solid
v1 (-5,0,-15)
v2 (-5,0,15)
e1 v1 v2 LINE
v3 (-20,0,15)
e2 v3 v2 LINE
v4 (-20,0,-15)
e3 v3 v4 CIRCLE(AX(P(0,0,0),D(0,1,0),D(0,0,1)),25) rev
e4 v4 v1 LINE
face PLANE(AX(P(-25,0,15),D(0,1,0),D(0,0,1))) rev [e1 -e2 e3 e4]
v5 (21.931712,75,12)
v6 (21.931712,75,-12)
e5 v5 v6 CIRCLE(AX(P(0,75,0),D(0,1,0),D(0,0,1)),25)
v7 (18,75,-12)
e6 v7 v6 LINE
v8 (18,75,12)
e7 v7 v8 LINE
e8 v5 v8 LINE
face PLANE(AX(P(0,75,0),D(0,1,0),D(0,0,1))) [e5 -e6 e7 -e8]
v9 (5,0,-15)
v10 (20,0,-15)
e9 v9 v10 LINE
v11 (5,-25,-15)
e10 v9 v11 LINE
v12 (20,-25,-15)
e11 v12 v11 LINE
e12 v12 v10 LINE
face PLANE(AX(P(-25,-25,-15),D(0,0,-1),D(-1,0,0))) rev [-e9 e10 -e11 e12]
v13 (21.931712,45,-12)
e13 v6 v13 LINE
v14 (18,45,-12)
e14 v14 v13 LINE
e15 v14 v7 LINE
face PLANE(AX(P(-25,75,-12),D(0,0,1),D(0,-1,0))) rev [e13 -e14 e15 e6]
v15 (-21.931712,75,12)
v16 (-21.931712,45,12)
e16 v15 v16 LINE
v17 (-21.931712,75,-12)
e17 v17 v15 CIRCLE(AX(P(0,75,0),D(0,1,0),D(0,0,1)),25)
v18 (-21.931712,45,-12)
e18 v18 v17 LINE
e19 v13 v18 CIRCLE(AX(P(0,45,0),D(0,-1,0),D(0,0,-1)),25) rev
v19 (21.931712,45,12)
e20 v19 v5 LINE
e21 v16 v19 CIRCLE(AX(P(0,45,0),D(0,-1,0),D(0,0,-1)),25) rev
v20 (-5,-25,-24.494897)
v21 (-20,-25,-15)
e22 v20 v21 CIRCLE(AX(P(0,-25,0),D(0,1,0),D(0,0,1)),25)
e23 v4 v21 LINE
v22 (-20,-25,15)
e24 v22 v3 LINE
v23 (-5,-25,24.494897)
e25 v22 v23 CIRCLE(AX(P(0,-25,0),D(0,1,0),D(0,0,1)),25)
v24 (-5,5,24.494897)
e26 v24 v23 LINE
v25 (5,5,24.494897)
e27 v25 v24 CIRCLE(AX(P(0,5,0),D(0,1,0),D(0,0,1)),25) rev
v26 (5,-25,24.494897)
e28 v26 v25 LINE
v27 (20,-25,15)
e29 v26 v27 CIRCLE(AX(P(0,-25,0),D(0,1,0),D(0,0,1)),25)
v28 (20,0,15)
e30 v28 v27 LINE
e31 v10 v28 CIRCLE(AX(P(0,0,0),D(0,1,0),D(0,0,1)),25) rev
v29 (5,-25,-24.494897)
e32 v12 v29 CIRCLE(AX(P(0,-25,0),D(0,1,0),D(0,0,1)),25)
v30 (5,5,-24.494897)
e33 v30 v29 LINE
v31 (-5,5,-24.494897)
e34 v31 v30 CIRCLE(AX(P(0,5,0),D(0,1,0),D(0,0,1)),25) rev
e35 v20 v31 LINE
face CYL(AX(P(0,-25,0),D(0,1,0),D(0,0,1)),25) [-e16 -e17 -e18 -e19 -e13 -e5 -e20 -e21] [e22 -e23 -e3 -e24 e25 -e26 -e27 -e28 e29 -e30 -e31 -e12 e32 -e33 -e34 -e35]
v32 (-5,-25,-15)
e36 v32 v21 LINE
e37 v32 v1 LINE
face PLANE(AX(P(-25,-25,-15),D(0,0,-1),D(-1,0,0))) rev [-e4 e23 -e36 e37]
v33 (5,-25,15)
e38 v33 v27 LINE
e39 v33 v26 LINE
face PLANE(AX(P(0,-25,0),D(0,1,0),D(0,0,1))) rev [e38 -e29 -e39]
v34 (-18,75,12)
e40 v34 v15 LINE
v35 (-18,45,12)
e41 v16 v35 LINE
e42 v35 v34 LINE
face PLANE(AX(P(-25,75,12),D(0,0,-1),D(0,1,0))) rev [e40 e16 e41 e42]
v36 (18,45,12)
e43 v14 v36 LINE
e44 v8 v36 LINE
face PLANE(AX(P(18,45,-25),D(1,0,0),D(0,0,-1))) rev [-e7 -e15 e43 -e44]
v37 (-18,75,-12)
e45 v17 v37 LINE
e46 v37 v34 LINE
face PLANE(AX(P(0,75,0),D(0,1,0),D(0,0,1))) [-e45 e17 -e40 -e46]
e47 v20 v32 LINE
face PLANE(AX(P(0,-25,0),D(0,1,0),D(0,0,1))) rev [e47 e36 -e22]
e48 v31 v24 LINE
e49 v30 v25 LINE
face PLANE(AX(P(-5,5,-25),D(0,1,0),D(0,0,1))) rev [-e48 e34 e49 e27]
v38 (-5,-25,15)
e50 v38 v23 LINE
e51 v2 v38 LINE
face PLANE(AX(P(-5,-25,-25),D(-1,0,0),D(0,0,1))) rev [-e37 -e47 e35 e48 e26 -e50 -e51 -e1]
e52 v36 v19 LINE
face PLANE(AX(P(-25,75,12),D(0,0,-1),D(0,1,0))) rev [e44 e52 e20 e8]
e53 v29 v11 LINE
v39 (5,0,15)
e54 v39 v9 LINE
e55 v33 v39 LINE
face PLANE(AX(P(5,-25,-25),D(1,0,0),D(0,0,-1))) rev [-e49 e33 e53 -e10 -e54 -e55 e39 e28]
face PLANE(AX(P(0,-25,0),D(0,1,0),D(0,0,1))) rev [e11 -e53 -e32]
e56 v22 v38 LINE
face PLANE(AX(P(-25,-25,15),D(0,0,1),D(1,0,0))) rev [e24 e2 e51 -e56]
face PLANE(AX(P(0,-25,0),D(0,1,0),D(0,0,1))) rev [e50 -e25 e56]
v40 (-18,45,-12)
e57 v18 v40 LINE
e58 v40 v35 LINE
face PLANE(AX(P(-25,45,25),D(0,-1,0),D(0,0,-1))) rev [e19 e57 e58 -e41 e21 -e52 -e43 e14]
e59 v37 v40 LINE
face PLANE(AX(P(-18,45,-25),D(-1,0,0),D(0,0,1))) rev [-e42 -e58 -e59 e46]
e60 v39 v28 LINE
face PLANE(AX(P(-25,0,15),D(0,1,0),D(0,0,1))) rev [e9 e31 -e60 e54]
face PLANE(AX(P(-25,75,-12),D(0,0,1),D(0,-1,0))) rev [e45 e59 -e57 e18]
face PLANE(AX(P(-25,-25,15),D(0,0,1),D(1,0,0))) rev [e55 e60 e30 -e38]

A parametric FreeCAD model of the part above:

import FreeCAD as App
import Part
import Sketcher
from FreeCAD import Vector
Q = App.Units.Quantity

doc = App.newDocument("Part")
body = doc.addObject("PartDesign::Body", "Body")

sketch1 = doc.addObject("Sketcher::SketchObject", "Sketch")
body.addObject(sketch1)
sketch1.AttachmentSupport = (doc.XZ_Plane, [""])
sketch1.MapMode = "FlatFace"
sketch1.addGeometry(Part.Circle(Vector(0, 0, 0), Vector(0, 0, 1), 25), False)
sketch1.addConstraint(Sketcher.Constraint("Coincident", 0, 3, -1, 1))
sketch1.addConstraint(Sketcher.Constraint("Diameter", 0, Q("50 mm")))
pad1 = doc.addObject("PartDesign::Pad", "Pad")
body.addObject(pad1)
pad1.Profile = sketch1
pad1.Length = 25

sketch2 = doc.addObject("Sketcher::SketchObject", "Sketch001")
body.addObject(sketch2)
sketch2.AttachmentSupport = (doc.XZ_Plane, [""])
sketch2.MapMode = "FlatFace"
sketch2.AttachmentOffset = App.Placement(Vector(0, 0, -75), App.Rotation())
sketch2.addGeometry(Part.Circle(Vector(0, 0, 0), Vector(0, 0, 1), 25), False)
sketch2.addConstraint(Sketcher.Constraint("Coincident", 0, 3, -1, 1))
sketch2.addConstraint(Sketcher.Constraint("Diameter", 0, Q("50 mm")))
pad2 = doc.addObject("PartDesign::Pad", "Pad001")
body.addObject(pad2)
pad2.Profile = sketch2
pad2.Length = 75

sketch3 = doc.addObject("Sketcher::SketchObject", "Sketch002")
body.addObject(sketch3)
sketch3.AttachmentSupport = (doc.YZ_Plane, [""])
sketch3.MapMode = "FlatFace"
sketch3.addGeometry(Part.LineSegment(Vector(-25, 15, 0), Vector(-25, -15, 0)), False)
sketch3.addGeometry(Part.LineSegment(Vector(-25, -15, 0), Vector(0, -15, 0)), False)
sketch3.addGeometry(Part.LineSegment(Vector(0, -15, 0), Vector(0, 15, 0)), False)
sketch3.addGeometry(Part.LineSegment(Vector(0, 15, 0), Vector(-25, 15, 0)), False)
sketch3.addConstraint(Sketcher.Constraint("Coincident", 0, 2, 1, 1))
sketch3.addConstraint(Sketcher.Constraint("Coincident", 1, 2, 2, 1))
sketch3.addConstraint(Sketcher.Constraint("Coincident", 2, 2, 3, 1))
sketch3.addConstraint(Sketcher.Constraint("Coincident", 3, 2, 0, 1))
sketch3.addConstraint(Sketcher.Constraint("Vertical", 0))
sketch3.addConstraint(Sketcher.Constraint("Horizontal", 1))
sketch3.addConstraint(Sketcher.Constraint("Vertical", 2))
sketch3.addConstraint(Sketcher.Constraint("Horizontal", 3))
sketch3.addConstraint(Sketcher.Constraint("Symmetric", 1, 2, 2, 2, -1, 1))
sketch3.addConstraint(Sketcher.Constraint("DistanceX", 1, 1, 1, 2, Q("25 mm")))
sketch3.addConstraint(Sketcher.Constraint("DistanceY", 0, 2, 0, 1, Q("30 mm")))
pocket1 = doc.addObject("PartDesign::Pocket", "Pocket")
body.addObject(pocket1)
pocket1.Profile = sketch3
pocket1.Type = "ThroughAll"
pocket1.Midplane = True

sketch4 = doc.addObject("Sketcher::SketchObject", "Sketch003")
body.addObject(sketch4)
sketch4.AttachmentSupport = (doc.YZ_Plane, [""])
sketch4.MapMode = "FlatFace"
sketch4.addGeometry(Part.LineSegment(Vector(45, 25, 0), Vector(45, 12, 0)), False)
sketch4.addGeometry(Part.LineSegment(Vector(45, 12, 0), Vector(75, 12, 0)), False)
sketch4.addGeometry(Part.LineSegment(Vector(75, 12, 0), Vector(75, 25, 0)), False)
sketch4.addGeometry(Part.LineSegment(Vector(75, 25, 0), Vector(45, 25, 0)), False)
sketch4.addGeometry(Part.LineSegment(Vector(45, -12, 0), Vector(45, -25, 0)), False)
sketch4.addGeometry(Part.LineSegment(Vector(45, -25, 0), Vector(75, -25, 0)), False)
sketch4.addGeometry(Part.LineSegment(Vector(75, -25, 0), Vector(75, -12, 0)), False)
sketch4.addGeometry(Part.LineSegment(Vector(75, -12, 0), Vector(45, -12, 0)), False)
sketch4.addConstraint(Sketcher.Constraint("Coincident", 0, 2, 1, 1))
sketch4.addConstraint(Sketcher.Constraint("Coincident", 1, 2, 2, 1))
sketch4.addConstraint(Sketcher.Constraint("Coincident", 2, 2, 3, 1))
sketch4.addConstraint(Sketcher.Constraint("Coincident", 3, 2, 0, 1))
sketch4.addConstraint(Sketcher.Constraint("Coincident", 4, 2, 5, 1))
sketch4.addConstraint(Sketcher.Constraint("Coincident", 5, 2, 6, 1))
sketch4.addConstraint(Sketcher.Constraint("Coincident", 6, 2, 7, 1))
sketch4.addConstraint(Sketcher.Constraint("Coincident", 7, 2, 4, 1))
sketch4.addConstraint(Sketcher.Constraint("Vertical", 0))
sketch4.addConstraint(Sketcher.Constraint("Horizontal", 1))
sketch4.addConstraint(Sketcher.Constraint("Vertical", 2))
sketch4.addConstraint(Sketcher.Constraint("Horizontal", 3))
sketch4.addConstraint(Sketcher.Constraint("Vertical", 4))
sketch4.addConstraint(Sketcher.Constraint("Horizontal", 5))
sketch4.addConstraint(Sketcher.Constraint("Vertical", 6))
sketch4.addConstraint(Sketcher.Constraint("Horizontal", 7))
sketch4.addConstraint(Sketcher.Constraint("Symmetric", 3, 2, 4, 2, -1))
sketch4.addConstraint(Sketcher.Constraint("Symmetric", 1, 2, 6, 2, -1))
sketch4.addConstraint(Sketcher.Constraint("DistanceX", 1, 1, 1, 2, Q("30 mm")))
sketch4.addConstraint(Sketcher.Constraint("DistanceY", 0, 2, 0, 1, Q("13 mm")))
sketch4.addConstraint(Sketcher.Constraint("DistanceX", -1, 1, 0, 2, Q("45 mm")))
sketch4.addConstraint(Sketcher.Constraint("DistanceY", -1, 1, 0, 2, Q("12 mm")))
pocket2 = doc.addObject("PartDesign::Pocket", "Pocket001")
body.addObject(pocket2)
pocket2.Profile = sketch4
pocket2.Type = "ThroughAll"
pocket2.Midplane = True

sketch5 = doc.addObject("Sketcher::SketchObject", "Sketch004")
body.addObject(sketch5)
sketch5.AttachmentSupport = (doc.XY_Plane, [""])
sketch5.MapMode = "FlatFace"
sketch5.addGeometry(Part.LineSegment(Vector(-5, -25, 0), Vector(5, -25, 0)), False)
sketch5.addGeometry(Part.LineSegment(Vector(5, -25, 0), Vector(5, 5, 0)), False)
sketch5.addGeometry(Part.LineSegment(Vector(5, 5, 0), Vector(-5, 5, 0)), False)
sketch5.addGeometry(Part.LineSegment(Vector(-5, 5, 0), Vector(-5, -25, 0)), False)
sketch5.addConstraint(Sketcher.Constraint("Coincident", 0, 2, 1, 1))
sketch5.addConstraint(Sketcher.Constraint("Coincident", 1, 2, 2, 1))
sketch5.addConstraint(Sketcher.Constraint("Coincident", 2, 2, 3, 1))
sketch5.addConstraint(Sketcher.Constraint("Coincident", 3, 2, 0, 1))
sketch5.addConstraint(Sketcher.Constraint("Horizontal", 0))
sketch5.addConstraint(Sketcher.Constraint("Vertical", 1))
sketch5.addConstraint(Sketcher.Constraint("Horizontal", 2))
sketch5.addConstraint(Sketcher.Constraint("Vertical", 3))
sketch5.addConstraint(Sketcher.Constraint("DistanceX", 0, 1, 0, 2, Q("10 mm")))
sketch5.addConstraint(Sketcher.Constraint("DistanceY", 1, 1, 1, 2, Q("30 mm")))
sketch5.addConstraint(Sketcher.Constraint("DistanceX", -1, 1, 0, 2, Q("5 mm")))
sketch5.addConstraint(Sketcher.Constraint("DistanceY", 0, 2, -1, 1, Q("25 mm")))
pocket3 = doc.addObject("PartDesign::Pocket", "Pocket002")
body.addObject(pocket3)
pocket3.Profile = sketch5
pocket3.Type = "ThroughAll"
pocket3.Midplane = True

sketch6 = doc.addObject("Sketcher::SketchObject", "Sketch005")
body.addObject(sketch6)
sketch6.AttachmentSupport = (doc.XY_Plane, [""])
sketch6.MapMode = "FlatFace"
sketch6.addGeometry(Part.LineSegment(Vector(-18, 45, 0), Vector(18, 45, 0)), False)
sketch6.addGeometry(Part.LineSegment(Vector(18, 45, 0), Vector(18, 75, 0)), False)
sketch6.addGeometry(Part.LineSegment(Vector(18, 75, 0), Vector(-18, 75, 0)), False)
sketch6.addGeometry(Part.LineSegment(Vector(-18, 75, 0), Vector(-18, 45, 0)), False)
sketch6.addConstraint(Sketcher.Constraint("Coincident", 0, 2, 1, 1))
sketch6.addConstraint(Sketcher.Constraint("Coincident", 1, 2, 2, 1))
sketch6.addConstraint(Sketcher.Constraint("Coincident", 2, 2, 3, 1))
sketch6.addConstraint(Sketcher.Constraint("Coincident", 3, 2, 0, 1))
sketch6.addConstraint(Sketcher.Constraint("Horizontal", 0))
sketch6.addConstraint(Sketcher.Constraint("Vertical", 1))
sketch6.addConstraint(Sketcher.Constraint("Horizontal", 2))
sketch6.addConstraint(Sketcher.Constraint("Vertical", 3))
sketch6.addConstraint(Sketcher.Constraint("DistanceX", 0, 1, 0, 2, Q("36 mm")))
sketch6.addConstraint(Sketcher.Constraint("DistanceY", 1, 1, 1, 2, Q("30 mm")))
sketch6.addConstraint(Sketcher.Constraint("DistanceX", -1, 1, 0, 2, Q("18 mm")))
sketch6.addConstraint(Sketcher.Constraint("DistanceY", -1, 1, 0, 2, Q("45 mm")))
pocket4 = doc.addObject("PartDesign::Pocket", "Pocket003")
body.addObject(pocket4)
pocket4.Profile = sketch6
pocket4.Type = "ThroughAll"
pocket4.Midplane = True

doc.recompute()
